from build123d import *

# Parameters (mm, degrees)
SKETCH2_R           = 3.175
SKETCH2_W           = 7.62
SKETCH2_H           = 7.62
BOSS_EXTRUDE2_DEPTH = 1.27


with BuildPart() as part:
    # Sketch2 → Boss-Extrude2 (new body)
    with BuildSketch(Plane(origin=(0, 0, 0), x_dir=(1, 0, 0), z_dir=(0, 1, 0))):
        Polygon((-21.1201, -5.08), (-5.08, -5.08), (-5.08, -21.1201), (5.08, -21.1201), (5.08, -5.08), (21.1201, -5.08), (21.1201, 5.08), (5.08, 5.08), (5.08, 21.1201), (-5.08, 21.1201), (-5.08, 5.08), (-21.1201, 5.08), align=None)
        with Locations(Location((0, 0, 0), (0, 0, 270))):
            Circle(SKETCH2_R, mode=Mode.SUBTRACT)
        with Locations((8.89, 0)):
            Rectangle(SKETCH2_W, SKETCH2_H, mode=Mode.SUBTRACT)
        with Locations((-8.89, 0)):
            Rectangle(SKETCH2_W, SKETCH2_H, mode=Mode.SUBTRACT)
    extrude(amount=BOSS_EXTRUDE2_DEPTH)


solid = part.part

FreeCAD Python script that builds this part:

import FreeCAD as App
import Part
import Sketcher
from FreeCAD import Vector
Q = App.Units.Quantity


def add_polygon(sketch, points):
    """Adds a closed chain of lines whose ends are joined by coincident constraints."""
    first, n = sketch.GeometryCount, len(points)
    for a, b in zip(points, points[1:] + points[:1]):
        sketch.addGeometry(Part.LineSegment(App.Vector(*a, 0), App.Vector(*b, 0)), False)
    for i in range(n):
        sketch.addConstraint(Sketcher.Constraint("Coincident", first + i, 2, first + (i + 1) % n, 1))

doc = App.newDocument("Part")
params = doc.addObject("Spreadsheet::Sheet", "Params")
for row, (alias, value) in enumerate([
    ("sketch1_diameter", "0.25 in"),
    ("sketch1_width", "0.4 in"),
    ("sketch1_width2", "0.3 in"),
    ("pad1_length", "0.05 in"),
], start=1):
    params.set(f"A{row}", alias)
    params.set(f"B{row}", "=" + value)
    params.setAlias(f"B{row}", alias)

body = doc.addObject("PartDesign::Body", "Body")

# Sketch on XZ plane
sketch1 = body.newObject("Sketcher::SketchObject", "Sketch")
sketch1.AttachmentSupport = (doc.getObject("XZ_Plane"), [""])
sketch1.MapMode = "FlatFace"
add_polygon(sketch1, [(-21.1201, 5.08), (-5.08, 5.08), (-5.08, 21.1201), (5.08, 21.1201), (5.08, 5.08), (21.1201, 5.08), (21.1201, -5.08), (5.08, -5.08), (5.08, -21.1201), (-5.08, -21.1201), (-5.08, -5.08), (-21.1201, -5.08)])  # lines 0-11
add_polygon(sketch1, [(-5.08, 3.81), (-12.7, 3.81), (-12.7, -3.81), (-5.08, -3.81)])  # lines 12-15
sketch1.addGeometry(Part.Circle(Vector(0, 0, 0), Vector(0, 0, 1), 3.175), False)  # 16
add_polygon(sketch1, [(12.7, 3.81), (5.08, 3.81), (5.08, -3.81), (12.7, -3.81)])  # lines 17-20
sketch1.addConstraint([
    Sketcher.Constraint("Horizontal", 0),
    Sketcher.Constraint("Vertical", 1),
    Sketcher.Constraint("Horizontal", 2),
    Sketcher.Constraint("Vertical", 3),
    Sketcher.Constraint("Horizontal", 4),
    Sketcher.Constraint("Vertical", 5),
    Sketcher.Constraint("Horizontal", 6),
    Sketcher.Constraint("Vertical", 7),
    Sketcher.Constraint("Horizontal", 8),
    Sketcher.Constraint("Vertical", 9),
    Sketcher.Constraint("Horizontal", 10),
    Sketcher.Constraint("Vertical", 11),
    Sketcher.Constraint("Horizontal", 12),
    Sketcher.Constraint("Vertical", 13),
    Sketcher.Constraint("Horizontal", 14),
    Sketcher.Constraint("Vertical", 15),
    Sketcher.Constraint("Horizontal", 17),
    Sketcher.Constraint("Vertical", 18),
    Sketcher.Constraint("Horizontal", 19),
    Sketcher.Constraint("Vertical", 20),
    Sketcher.Constraint("Coincident", 16, 3, -1, 1),
    Sketcher.Constraint("Symmetric", 0, 2, 6, 2, -1, 1),
    Sketcher.Constraint("Symmetric", 2, 2, 8, 2, -1, 1),
    Sketcher.Constraint("Symmetric", 4, 2, 10, 2, -1, 1),
    Sketcher.Constraint("Symmetric", 14, 2, 17, 2, -1, 1),
    Sketcher.Constraint("Symmetric", 12, 2, 19, 2, -1, 1),
    Sketcher.Constraint("Symmetric", 0, 2, 3, 2, -2),
    Sketcher.Constraint("Horizontal", 15, 2, 17, 2),
    Sketcher.Constraint("Vertical", 9, 2, 14, 2),
    Sketcher.Constraint("Equal", 10, 1),
    Sketcher.Constraint("Equal", 8, 5),
    Sketcher.Constraint("Equal", 19, 13),
    Sketcher.Constraint("Diameter", 16, Q("0.25 in")),
    Sketcher.Constraint("DistanceX", 2, 1, 2, 2, Q("0.4 in")),
    Sketcher.Constraint("DistanceX", 12, 2, 12, 1, Q("0.3 in")),
    Sketcher.Constraint("DistanceX", 0, 1, 0, 2, Q("0.6315 in")),
])
sketch1.setExpression("Constraints[52]", "Params.sketch1_diameter")
sketch1.setExpression("Constraints[53]", "Params.sketch1_width")
sketch1.setExpression("Constraints[54]", "Params.sketch1_width2")
pad1 = body.newObject("PartDesign::Pad", "Pad")
pad1.Profile = sketch1
pad1.setExpression("Length", "Params.pad1_length")
pad1.Reversed = True

doc.recompute()
